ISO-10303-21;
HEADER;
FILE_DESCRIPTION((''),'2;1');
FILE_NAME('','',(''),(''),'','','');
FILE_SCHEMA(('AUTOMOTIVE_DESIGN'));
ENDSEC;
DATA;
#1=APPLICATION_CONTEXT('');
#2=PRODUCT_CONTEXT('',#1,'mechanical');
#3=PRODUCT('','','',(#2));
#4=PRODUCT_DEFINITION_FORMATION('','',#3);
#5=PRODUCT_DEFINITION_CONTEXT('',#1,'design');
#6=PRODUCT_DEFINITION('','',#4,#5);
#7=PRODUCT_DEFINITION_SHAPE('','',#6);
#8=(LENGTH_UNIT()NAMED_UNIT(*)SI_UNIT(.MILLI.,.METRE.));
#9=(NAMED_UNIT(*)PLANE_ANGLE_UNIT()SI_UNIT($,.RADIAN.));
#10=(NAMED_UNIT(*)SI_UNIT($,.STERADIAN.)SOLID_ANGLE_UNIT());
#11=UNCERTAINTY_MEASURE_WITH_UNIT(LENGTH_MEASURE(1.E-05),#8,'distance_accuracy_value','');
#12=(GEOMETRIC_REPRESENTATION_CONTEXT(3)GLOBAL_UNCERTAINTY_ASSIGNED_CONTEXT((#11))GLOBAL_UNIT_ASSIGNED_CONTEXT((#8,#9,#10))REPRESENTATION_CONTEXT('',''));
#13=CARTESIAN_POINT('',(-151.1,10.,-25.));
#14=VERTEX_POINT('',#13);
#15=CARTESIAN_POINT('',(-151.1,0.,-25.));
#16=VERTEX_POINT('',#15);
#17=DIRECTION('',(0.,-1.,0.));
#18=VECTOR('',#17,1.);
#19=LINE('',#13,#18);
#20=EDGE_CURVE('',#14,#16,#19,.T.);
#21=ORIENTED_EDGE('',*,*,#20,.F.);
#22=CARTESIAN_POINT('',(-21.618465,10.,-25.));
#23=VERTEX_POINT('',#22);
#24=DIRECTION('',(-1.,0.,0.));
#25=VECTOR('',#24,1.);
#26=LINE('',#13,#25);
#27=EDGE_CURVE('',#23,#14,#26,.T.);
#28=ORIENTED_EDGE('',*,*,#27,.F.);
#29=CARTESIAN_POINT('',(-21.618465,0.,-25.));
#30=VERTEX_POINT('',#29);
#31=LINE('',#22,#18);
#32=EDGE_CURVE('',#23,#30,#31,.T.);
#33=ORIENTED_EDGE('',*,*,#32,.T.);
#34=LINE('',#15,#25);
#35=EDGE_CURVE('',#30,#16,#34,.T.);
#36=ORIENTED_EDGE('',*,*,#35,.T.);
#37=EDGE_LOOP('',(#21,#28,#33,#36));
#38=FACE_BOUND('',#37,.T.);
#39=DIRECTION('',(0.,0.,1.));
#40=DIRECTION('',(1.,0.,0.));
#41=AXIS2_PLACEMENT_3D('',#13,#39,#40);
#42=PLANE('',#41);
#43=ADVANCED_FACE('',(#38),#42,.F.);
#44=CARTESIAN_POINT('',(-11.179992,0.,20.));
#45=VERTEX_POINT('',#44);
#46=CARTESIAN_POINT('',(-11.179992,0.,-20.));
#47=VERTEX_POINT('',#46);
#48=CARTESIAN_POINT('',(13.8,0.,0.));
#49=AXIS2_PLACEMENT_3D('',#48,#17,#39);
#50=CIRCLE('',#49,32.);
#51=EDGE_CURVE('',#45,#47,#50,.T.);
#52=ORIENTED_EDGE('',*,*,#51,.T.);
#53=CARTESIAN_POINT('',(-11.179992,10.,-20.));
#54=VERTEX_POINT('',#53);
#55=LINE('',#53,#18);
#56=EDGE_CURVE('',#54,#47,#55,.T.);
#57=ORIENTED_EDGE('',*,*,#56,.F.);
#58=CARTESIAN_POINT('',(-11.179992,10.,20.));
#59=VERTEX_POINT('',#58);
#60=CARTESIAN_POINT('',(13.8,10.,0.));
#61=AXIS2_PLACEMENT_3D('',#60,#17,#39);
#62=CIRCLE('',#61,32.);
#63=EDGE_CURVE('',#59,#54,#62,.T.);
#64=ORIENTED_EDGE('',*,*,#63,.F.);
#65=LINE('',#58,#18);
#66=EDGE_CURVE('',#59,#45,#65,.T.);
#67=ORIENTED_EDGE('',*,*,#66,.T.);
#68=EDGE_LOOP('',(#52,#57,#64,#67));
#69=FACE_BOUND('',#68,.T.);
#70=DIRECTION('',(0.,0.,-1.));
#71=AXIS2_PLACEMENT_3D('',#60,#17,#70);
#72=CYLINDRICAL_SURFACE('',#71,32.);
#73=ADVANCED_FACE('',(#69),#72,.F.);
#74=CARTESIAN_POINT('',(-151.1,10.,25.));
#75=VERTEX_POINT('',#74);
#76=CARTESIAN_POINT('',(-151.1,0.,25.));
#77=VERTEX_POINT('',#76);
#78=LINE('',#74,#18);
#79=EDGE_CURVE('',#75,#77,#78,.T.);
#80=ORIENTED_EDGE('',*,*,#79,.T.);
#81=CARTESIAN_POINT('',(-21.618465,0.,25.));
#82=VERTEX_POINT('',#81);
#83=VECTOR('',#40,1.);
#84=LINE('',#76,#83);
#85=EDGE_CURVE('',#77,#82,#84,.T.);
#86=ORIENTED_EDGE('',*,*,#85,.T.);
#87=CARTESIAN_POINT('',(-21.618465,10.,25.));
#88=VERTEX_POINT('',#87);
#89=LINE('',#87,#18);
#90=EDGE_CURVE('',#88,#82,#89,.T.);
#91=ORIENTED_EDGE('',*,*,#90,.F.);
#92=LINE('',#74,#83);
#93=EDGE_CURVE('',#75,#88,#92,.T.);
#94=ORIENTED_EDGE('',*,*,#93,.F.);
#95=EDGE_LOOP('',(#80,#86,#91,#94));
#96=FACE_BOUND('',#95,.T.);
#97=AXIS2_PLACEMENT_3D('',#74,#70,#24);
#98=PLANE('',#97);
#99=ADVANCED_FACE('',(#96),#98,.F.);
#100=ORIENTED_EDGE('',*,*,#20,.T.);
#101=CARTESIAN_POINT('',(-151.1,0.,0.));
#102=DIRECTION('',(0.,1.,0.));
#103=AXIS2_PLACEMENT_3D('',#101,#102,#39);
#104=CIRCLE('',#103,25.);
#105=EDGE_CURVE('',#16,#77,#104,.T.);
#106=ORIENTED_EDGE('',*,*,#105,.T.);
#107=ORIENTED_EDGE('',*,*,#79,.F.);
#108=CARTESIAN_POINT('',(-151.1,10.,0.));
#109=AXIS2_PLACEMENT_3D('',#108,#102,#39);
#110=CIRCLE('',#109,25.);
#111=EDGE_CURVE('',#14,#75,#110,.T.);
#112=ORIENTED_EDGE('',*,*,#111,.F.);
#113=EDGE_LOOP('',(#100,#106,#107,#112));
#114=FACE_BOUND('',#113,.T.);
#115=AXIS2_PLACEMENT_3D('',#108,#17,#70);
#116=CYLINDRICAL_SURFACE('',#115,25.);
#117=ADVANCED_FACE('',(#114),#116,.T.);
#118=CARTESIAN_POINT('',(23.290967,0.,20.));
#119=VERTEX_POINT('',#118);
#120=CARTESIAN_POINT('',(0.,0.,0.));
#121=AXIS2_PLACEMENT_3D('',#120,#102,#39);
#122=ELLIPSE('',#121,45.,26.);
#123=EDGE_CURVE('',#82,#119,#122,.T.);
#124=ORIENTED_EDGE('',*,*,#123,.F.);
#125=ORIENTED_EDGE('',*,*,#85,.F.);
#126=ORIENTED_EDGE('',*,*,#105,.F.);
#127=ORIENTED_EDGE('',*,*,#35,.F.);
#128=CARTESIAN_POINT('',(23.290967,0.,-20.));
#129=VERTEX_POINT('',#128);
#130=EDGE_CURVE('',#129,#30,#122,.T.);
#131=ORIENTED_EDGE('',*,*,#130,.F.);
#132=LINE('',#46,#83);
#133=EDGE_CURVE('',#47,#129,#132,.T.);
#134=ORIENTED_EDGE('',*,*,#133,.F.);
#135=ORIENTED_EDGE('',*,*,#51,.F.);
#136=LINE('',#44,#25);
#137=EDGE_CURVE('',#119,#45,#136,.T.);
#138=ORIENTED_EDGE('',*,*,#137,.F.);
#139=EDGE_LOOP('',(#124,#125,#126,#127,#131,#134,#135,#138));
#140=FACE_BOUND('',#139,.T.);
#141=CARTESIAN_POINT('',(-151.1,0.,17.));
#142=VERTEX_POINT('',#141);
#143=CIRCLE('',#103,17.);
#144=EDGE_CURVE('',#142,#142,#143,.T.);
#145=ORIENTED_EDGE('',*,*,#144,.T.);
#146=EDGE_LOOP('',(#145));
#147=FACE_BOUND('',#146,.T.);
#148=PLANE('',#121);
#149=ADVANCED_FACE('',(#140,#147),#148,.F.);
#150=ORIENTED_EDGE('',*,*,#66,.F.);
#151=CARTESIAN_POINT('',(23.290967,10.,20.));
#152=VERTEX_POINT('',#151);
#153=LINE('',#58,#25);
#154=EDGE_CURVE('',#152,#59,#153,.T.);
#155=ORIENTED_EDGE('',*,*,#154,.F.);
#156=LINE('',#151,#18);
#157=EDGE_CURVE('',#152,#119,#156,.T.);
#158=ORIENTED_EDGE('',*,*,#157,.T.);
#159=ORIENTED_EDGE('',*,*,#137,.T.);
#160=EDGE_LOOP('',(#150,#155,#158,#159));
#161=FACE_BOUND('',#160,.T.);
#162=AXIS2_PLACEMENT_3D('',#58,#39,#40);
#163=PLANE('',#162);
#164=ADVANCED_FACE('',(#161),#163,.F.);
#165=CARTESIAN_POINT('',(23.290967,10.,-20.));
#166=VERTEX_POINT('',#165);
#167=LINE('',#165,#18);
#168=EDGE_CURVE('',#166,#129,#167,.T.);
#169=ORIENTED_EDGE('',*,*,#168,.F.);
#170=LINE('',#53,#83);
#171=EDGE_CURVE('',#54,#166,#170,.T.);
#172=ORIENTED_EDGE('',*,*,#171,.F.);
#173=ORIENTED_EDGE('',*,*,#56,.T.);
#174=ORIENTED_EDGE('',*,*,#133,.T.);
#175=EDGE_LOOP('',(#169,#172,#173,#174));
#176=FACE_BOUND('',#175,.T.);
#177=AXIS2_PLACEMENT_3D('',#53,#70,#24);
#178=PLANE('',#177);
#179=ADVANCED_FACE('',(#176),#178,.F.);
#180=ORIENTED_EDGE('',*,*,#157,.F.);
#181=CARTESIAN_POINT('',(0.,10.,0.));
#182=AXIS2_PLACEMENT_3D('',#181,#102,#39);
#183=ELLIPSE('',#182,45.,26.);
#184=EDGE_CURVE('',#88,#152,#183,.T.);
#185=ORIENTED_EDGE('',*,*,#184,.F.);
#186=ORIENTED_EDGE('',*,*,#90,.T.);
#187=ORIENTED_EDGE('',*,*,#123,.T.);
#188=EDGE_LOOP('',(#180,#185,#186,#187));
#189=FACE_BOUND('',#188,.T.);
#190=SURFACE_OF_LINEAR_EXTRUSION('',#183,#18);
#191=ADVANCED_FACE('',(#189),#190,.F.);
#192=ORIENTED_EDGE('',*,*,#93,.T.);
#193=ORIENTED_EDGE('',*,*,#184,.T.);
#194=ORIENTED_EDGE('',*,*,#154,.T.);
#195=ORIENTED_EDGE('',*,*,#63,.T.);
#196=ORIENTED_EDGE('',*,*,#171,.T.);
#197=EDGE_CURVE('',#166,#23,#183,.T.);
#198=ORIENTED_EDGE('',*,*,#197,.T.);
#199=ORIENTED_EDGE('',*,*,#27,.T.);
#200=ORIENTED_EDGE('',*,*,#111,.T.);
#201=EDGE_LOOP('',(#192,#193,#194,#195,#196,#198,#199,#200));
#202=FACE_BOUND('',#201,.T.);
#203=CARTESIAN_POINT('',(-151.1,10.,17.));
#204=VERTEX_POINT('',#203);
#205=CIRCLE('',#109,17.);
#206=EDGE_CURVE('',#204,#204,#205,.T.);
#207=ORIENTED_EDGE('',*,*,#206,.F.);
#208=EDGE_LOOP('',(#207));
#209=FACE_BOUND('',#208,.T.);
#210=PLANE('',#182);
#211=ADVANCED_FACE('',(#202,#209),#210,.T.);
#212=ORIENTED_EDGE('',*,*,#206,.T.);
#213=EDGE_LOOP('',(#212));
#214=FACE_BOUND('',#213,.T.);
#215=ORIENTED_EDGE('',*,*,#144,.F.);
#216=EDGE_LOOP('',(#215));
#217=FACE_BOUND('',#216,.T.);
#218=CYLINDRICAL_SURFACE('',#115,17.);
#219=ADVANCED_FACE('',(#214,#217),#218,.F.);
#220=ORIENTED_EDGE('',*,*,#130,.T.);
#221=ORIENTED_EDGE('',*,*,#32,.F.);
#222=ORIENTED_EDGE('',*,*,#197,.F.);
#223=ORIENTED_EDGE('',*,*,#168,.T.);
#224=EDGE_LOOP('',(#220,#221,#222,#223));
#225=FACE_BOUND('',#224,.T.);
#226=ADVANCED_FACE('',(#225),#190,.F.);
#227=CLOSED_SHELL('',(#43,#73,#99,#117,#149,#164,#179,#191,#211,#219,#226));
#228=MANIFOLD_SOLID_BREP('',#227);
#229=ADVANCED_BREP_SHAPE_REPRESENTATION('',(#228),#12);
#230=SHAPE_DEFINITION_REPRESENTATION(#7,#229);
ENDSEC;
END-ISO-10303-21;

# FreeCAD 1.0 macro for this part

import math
import FreeCAD as App
import Part
import Sketcher

V = App.Vector
Q = App.Units.Quantity

doc = App.newDocument("Part")
body = doc.addObject("PartDesign::Body", "Body")

# Sketch on XZ plane
sketch1 = body.newObject("Sketcher::SketchObject", "Sketch")
sketch1.AttachmentSupport = (doc.getObject("XZ_Plane"), [""])
sketch1.MapMode = "FlatFace"
sketch1.addGeometry(Part.LineSegment(V(-21.618465, -25, 0), V(-151.1, -25, 0)), False)
sketch1.addGeometry(Part.ArcOfCircle(Part.Circle(V(-151.1, 0, 0), V(0, 0, 1), 25), math.radians(90), math.radians(270)), False)
sketch1.addGeometry(Part.LineSegment(V(-151.1, 25, 0), V(-21.618465, 25, 0)), False)
sketch1.addGeometry(Part.BSplineCurve([V(-21.618465, 25, 0), V(3.331219, 89.629118, 0), V(23.290967, 20, 0)], [3, 3], [5.301419951, 7.393427642], False, 2, [1, 0.501033423, 1], False), False)
sketch1.addGeometry(Part.LineSegment(V(23.290967, 20, 0), V(-11.179992, 20, 0)), False)
sketch1.addGeometry(Part.ArcOfCircle(Part.Circle(V(13.8, 0, 0), V(0, 0, 1), 32), math.radians(141.317813), math.radians(218.682187)), False)
sketch1.addGeometry(Part.LineSegment(V(-11.179992, -20, 0), V(23.290967, -20, 0)), False)
sketch1.addGeometry(Part.BSplineCurve([V(23.290967, -20, 0), V(3.331219, -89.629118, 0), V(-21.618465, -25, 0)], [3, 3], [2.031350318, 4.12335801], False, 2, [1, 0.501033423, 1], False), False)
sketch1.addGeometry(Part.Circle(V(-151.1, 0, 0), V(0, 0, 1), 17), False)
sketch1.addConstraint(Sketcher.Constraint("Block", 3))
sketch1.addConstraint(Sketcher.Constraint("Block", 7))
sketch1.addConstraint(Sketcher.Constraint("Tangent", 0, 2, 1, 2))
sketch1.addConstraint(Sketcher.Constraint("Tangent", 1, 1, 2, 1))
sketch1.addConstraint(Sketcher.Constraint("Coincident", 2, 2, 3, 1))
sketch1.addConstraint(Sketcher.Constraint("Coincident", 3, 2, 4, 1))
sketch1.addConstraint(Sketcher.Constraint("Coincident", 4, 2, 5, 1))
sketch1.addConstraint(Sketcher.Constraint("Coincident", 5, 2, 6, 1))
sketch1.addConstraint(Sketcher.Constraint("Coincident", 6, 2, 7, 1))
sketch1.addConstraint(Sketcher.Constraint("Coincident", 7, 2, 0, 1))
sketch1.addConstraint(Sketcher.Constraint("Horizontal", 0))
sketch1.addConstraint(Sketcher.Constraint("Horizontal", 2))
sketch1.addConstraint(Sketcher.Constraint("Horizontal", 4))
sketch1.addConstraint(Sketcher.Constraint("Horizontal", 6))
sketch1.addConstraint(Sketcher.Constraint("Coincident", 8, 3, 1, 3))
sketch1.addConstraint(Sketcher.Constraint("PointOnObject", 5, 3, -1))
sketch1.addConstraint(Sketcher.Constraint("Diameter", 8, Q("34 mm")))
sketch1.addConstraint(Sketcher.Constraint("Radius", 5, Q("32 mm")))
sketch1.addConstraint(Sketcher.Constraint("DistanceX", 1, 3, -1, 1, Q("151.1 mm")))
sketch1.addConstraint(Sketcher.Constraint("DistanceX", -1, 1, 5, 3, Q("13.8 mm")))
pad1 = body.newObject("PartDesign::Pad", "Pad")
pad1.Profile = sketch1
pad1.Length = 10
pad1.Reversed = True

doc.recompute()
